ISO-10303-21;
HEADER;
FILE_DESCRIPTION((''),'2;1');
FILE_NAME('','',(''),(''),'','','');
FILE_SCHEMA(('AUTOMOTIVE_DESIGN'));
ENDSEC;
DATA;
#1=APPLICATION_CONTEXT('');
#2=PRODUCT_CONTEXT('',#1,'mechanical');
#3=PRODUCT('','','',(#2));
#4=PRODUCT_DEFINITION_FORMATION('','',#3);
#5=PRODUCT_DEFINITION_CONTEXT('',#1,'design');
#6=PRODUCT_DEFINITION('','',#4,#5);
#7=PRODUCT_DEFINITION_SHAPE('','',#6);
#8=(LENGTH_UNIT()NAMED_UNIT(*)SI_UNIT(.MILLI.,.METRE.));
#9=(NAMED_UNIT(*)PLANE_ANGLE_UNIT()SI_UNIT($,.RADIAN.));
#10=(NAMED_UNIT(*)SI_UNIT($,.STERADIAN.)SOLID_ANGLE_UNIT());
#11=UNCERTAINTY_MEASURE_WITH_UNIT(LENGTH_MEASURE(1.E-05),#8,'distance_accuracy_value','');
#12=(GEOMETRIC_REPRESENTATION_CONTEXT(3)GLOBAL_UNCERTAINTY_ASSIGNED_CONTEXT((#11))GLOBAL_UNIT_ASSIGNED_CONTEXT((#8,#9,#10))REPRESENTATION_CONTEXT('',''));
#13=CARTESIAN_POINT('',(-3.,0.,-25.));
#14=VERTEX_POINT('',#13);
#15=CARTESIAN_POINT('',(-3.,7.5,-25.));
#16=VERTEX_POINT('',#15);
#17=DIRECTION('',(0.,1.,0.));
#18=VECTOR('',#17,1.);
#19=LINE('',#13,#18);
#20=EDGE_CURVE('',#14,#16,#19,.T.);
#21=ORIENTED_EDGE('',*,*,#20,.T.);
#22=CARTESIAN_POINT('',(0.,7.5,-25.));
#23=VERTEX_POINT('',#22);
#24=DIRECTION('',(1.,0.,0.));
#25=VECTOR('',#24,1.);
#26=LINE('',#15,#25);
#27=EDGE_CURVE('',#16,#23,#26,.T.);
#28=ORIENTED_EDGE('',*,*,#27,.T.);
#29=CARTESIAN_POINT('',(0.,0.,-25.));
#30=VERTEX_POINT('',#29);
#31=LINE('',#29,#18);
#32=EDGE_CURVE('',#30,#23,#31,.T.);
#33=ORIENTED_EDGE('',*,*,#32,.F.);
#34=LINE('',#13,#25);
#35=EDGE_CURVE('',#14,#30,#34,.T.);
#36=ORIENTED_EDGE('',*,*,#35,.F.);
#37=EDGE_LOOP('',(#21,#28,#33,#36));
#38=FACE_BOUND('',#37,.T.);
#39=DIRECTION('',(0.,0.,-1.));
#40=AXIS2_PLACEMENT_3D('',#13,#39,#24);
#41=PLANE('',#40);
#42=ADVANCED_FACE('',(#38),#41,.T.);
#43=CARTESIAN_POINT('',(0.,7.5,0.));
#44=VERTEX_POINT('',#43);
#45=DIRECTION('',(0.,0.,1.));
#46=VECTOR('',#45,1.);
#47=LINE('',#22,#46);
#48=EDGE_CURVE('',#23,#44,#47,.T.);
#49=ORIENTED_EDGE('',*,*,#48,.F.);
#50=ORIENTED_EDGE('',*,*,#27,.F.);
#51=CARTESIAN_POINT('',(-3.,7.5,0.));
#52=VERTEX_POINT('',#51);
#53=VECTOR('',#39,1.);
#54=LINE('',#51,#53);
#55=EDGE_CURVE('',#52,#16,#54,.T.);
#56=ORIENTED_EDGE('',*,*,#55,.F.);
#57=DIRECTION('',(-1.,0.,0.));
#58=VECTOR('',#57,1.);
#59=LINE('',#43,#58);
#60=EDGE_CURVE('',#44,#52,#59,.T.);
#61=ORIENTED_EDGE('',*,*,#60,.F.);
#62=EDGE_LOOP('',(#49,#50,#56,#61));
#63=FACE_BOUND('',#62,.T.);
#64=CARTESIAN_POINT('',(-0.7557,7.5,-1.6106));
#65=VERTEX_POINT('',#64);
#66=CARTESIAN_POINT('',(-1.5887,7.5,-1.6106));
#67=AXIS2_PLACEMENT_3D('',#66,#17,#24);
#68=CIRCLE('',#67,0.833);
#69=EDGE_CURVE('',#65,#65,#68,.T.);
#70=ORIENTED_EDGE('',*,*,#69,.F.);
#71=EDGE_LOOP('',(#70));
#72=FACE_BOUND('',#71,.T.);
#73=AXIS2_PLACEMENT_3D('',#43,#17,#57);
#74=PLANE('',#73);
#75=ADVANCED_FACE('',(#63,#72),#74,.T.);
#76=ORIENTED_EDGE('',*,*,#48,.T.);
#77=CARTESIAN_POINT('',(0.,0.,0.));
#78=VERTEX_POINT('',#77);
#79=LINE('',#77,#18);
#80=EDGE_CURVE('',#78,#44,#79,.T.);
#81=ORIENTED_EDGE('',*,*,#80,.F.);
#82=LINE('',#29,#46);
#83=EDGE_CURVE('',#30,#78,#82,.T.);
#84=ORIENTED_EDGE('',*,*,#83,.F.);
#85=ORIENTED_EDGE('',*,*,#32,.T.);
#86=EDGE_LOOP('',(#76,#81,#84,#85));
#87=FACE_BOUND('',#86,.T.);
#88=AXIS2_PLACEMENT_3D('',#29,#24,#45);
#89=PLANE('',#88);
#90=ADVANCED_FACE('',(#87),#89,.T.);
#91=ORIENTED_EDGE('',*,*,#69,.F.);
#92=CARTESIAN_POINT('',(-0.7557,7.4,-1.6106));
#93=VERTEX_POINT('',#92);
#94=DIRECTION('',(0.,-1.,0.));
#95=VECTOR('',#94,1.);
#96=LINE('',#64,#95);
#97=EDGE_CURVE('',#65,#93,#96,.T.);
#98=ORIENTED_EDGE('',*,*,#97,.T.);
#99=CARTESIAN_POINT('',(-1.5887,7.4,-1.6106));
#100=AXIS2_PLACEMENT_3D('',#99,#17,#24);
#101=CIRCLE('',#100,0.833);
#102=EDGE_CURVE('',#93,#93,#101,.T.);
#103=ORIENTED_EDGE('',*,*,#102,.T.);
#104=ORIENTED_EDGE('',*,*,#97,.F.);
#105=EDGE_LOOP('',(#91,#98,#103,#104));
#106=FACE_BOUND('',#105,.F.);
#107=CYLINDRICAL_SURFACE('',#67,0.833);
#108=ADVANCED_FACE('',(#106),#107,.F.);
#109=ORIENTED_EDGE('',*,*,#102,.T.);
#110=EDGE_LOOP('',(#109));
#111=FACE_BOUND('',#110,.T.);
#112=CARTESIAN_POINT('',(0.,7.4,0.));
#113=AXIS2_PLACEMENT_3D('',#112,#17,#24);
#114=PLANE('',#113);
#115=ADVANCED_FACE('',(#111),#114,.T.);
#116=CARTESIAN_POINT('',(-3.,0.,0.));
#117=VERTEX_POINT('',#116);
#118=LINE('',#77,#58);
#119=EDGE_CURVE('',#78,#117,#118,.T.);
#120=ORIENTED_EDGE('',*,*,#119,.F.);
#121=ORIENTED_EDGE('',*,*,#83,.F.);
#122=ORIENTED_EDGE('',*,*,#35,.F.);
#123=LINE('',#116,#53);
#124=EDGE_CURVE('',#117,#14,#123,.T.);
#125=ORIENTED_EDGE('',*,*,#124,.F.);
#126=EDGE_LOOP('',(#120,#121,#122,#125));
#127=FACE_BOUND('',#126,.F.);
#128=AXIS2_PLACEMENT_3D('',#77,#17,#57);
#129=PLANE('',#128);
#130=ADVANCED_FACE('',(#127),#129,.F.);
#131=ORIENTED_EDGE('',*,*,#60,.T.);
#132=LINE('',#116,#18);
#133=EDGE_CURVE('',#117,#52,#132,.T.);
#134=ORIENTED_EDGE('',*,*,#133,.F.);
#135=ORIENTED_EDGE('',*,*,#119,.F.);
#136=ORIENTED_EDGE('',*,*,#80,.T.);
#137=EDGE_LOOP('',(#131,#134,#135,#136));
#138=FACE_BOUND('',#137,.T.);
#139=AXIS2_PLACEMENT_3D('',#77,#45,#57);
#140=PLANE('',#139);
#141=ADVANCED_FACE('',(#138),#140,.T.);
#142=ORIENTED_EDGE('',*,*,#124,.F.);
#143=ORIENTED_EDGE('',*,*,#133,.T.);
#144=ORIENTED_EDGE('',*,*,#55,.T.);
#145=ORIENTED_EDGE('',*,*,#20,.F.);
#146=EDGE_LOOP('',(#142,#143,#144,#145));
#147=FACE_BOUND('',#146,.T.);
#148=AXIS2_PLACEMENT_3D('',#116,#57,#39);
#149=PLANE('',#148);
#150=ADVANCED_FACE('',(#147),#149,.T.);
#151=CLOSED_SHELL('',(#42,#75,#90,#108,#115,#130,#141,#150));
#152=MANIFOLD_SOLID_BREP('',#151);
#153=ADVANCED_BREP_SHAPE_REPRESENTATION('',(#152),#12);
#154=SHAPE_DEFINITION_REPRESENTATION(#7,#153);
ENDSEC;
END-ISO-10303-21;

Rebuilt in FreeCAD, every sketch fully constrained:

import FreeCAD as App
import Part
import Sketcher

doc = App.newDocument("Part")
params = doc.addObject("Spreadsheet::Sheet", "Params")
for row, (alias, value) in enumerate([
    ("sketch1_width", "3 mm"),
    ("sketch1_height", "25 mm"),
    ("pad1_length", "7.5 mm"),
    ("pocket1_length", "0.1 mm"),
], start=1):
    params.set(f"A{row}", alias)
    params.set(f"B{row}", "=" + value)
    params.setAlias(f"B{row}", alias)

body = doc.addObject("PartDesign::Body", "Body")

sketch1 = body.newObject("Sketcher::SketchObject", "Sketch")
sketch1.AttachmentSupport = (doc.getObject("XZ_Plane"), [""])
sketch1.MapMode = "FlatFace"
sketch1.addGeometry(Part.LineSegment(App.Vector(-3, 0, 0), App.Vector(0, 0, 0)), False)
sketch1.addGeometry(Part.LineSegment(App.Vector(0, 0, 0), App.Vector(0, -25, 0)), False)
sketch1.addGeometry(Part.LineSegment(App.Vector(0, -25, 0), App.Vector(-3, -25, 0)), False)
sketch1.addGeometry(Part.LineSegment(App.Vector(-3, -25, 0), App.Vector(-3, 0, 0)), False)
sketch1.addConstraint(Sketcher.Constraint("Coincident", 0, 2, 1, 1))
sketch1.addConstraint(Sketcher.Constraint("Coincident", 1, 2, 2, 1))
sketch1.addConstraint(Sketcher.Constraint("Coincident", 2, 2, 3, 1))
sketch1.addConstraint(Sketcher.Constraint("Coincident", 3, 2, 0, 1))
sketch1.addConstraint(Sketcher.Constraint("Horizontal", 0))
sketch1.addConstraint(Sketcher.Constraint("Vertical", 1))
sketch1.addConstraint(Sketcher.Constraint("Horizontal", 2))
sketch1.addConstraint(Sketcher.Constraint("Vertical", 3))
sketch1.addConstraint(Sketcher.Constraint("Coincident", 0, 2, -1, 1))
sketch1.addConstraint(Sketcher.Constraint("DistanceX", 0, 1, 0, 2, 3.0))
sketch1.addConstraint(Sketcher.Constraint("DistanceY", 1, 2, 1, 1, 25.0))
sketch1.setExpression("Constraints[9]", "Params.sketch1_width")
sketch1.setExpression("Constraints[10]", "Params.sketch1_height")
pad1 = body.newObject("PartDesign::Pad", "Pad")
pad1.Profile = sketch1
pad1.setExpression("Length", "Params.pad1_length")
pad1.Reversed = True

sketch2 = body.newObject("Sketcher::SketchObject", "Sketch001")
sketch2.AttachmentSupport = (doc.getObject("XZ_Plane"), [""])
sketch2.MapMode = "FlatFace"
sketch2.AttachmentOffset = App.Placement(App.Vector(0, 0, -7.5), App.Rotation())
sketch2.addGeometry(Part.Circle(App.Vector(-1.6, -1.6, 0), App.Vector(0, 0, 1), 0.8), False)
sketch2.addConstraint(Sketcher.Constraint("Diameter", 0, 1.666))
sketch2.addConstraint(Sketcher.Constraint("DistanceX", 0, 3, -1, 1, 1.5887))
sketch2.addConstraint(Sketcher.Constraint("DistanceY", 0, 3, -1, 1, 1.6106))
pocket1 = body.newObject("PartDesign::Pocket", "Pocket")
pocket1.Profile = sketch2
pocket1.setExpression("Length", "Params.pocket1_length")
pocket1.Reversed = True

doc.recompute()
